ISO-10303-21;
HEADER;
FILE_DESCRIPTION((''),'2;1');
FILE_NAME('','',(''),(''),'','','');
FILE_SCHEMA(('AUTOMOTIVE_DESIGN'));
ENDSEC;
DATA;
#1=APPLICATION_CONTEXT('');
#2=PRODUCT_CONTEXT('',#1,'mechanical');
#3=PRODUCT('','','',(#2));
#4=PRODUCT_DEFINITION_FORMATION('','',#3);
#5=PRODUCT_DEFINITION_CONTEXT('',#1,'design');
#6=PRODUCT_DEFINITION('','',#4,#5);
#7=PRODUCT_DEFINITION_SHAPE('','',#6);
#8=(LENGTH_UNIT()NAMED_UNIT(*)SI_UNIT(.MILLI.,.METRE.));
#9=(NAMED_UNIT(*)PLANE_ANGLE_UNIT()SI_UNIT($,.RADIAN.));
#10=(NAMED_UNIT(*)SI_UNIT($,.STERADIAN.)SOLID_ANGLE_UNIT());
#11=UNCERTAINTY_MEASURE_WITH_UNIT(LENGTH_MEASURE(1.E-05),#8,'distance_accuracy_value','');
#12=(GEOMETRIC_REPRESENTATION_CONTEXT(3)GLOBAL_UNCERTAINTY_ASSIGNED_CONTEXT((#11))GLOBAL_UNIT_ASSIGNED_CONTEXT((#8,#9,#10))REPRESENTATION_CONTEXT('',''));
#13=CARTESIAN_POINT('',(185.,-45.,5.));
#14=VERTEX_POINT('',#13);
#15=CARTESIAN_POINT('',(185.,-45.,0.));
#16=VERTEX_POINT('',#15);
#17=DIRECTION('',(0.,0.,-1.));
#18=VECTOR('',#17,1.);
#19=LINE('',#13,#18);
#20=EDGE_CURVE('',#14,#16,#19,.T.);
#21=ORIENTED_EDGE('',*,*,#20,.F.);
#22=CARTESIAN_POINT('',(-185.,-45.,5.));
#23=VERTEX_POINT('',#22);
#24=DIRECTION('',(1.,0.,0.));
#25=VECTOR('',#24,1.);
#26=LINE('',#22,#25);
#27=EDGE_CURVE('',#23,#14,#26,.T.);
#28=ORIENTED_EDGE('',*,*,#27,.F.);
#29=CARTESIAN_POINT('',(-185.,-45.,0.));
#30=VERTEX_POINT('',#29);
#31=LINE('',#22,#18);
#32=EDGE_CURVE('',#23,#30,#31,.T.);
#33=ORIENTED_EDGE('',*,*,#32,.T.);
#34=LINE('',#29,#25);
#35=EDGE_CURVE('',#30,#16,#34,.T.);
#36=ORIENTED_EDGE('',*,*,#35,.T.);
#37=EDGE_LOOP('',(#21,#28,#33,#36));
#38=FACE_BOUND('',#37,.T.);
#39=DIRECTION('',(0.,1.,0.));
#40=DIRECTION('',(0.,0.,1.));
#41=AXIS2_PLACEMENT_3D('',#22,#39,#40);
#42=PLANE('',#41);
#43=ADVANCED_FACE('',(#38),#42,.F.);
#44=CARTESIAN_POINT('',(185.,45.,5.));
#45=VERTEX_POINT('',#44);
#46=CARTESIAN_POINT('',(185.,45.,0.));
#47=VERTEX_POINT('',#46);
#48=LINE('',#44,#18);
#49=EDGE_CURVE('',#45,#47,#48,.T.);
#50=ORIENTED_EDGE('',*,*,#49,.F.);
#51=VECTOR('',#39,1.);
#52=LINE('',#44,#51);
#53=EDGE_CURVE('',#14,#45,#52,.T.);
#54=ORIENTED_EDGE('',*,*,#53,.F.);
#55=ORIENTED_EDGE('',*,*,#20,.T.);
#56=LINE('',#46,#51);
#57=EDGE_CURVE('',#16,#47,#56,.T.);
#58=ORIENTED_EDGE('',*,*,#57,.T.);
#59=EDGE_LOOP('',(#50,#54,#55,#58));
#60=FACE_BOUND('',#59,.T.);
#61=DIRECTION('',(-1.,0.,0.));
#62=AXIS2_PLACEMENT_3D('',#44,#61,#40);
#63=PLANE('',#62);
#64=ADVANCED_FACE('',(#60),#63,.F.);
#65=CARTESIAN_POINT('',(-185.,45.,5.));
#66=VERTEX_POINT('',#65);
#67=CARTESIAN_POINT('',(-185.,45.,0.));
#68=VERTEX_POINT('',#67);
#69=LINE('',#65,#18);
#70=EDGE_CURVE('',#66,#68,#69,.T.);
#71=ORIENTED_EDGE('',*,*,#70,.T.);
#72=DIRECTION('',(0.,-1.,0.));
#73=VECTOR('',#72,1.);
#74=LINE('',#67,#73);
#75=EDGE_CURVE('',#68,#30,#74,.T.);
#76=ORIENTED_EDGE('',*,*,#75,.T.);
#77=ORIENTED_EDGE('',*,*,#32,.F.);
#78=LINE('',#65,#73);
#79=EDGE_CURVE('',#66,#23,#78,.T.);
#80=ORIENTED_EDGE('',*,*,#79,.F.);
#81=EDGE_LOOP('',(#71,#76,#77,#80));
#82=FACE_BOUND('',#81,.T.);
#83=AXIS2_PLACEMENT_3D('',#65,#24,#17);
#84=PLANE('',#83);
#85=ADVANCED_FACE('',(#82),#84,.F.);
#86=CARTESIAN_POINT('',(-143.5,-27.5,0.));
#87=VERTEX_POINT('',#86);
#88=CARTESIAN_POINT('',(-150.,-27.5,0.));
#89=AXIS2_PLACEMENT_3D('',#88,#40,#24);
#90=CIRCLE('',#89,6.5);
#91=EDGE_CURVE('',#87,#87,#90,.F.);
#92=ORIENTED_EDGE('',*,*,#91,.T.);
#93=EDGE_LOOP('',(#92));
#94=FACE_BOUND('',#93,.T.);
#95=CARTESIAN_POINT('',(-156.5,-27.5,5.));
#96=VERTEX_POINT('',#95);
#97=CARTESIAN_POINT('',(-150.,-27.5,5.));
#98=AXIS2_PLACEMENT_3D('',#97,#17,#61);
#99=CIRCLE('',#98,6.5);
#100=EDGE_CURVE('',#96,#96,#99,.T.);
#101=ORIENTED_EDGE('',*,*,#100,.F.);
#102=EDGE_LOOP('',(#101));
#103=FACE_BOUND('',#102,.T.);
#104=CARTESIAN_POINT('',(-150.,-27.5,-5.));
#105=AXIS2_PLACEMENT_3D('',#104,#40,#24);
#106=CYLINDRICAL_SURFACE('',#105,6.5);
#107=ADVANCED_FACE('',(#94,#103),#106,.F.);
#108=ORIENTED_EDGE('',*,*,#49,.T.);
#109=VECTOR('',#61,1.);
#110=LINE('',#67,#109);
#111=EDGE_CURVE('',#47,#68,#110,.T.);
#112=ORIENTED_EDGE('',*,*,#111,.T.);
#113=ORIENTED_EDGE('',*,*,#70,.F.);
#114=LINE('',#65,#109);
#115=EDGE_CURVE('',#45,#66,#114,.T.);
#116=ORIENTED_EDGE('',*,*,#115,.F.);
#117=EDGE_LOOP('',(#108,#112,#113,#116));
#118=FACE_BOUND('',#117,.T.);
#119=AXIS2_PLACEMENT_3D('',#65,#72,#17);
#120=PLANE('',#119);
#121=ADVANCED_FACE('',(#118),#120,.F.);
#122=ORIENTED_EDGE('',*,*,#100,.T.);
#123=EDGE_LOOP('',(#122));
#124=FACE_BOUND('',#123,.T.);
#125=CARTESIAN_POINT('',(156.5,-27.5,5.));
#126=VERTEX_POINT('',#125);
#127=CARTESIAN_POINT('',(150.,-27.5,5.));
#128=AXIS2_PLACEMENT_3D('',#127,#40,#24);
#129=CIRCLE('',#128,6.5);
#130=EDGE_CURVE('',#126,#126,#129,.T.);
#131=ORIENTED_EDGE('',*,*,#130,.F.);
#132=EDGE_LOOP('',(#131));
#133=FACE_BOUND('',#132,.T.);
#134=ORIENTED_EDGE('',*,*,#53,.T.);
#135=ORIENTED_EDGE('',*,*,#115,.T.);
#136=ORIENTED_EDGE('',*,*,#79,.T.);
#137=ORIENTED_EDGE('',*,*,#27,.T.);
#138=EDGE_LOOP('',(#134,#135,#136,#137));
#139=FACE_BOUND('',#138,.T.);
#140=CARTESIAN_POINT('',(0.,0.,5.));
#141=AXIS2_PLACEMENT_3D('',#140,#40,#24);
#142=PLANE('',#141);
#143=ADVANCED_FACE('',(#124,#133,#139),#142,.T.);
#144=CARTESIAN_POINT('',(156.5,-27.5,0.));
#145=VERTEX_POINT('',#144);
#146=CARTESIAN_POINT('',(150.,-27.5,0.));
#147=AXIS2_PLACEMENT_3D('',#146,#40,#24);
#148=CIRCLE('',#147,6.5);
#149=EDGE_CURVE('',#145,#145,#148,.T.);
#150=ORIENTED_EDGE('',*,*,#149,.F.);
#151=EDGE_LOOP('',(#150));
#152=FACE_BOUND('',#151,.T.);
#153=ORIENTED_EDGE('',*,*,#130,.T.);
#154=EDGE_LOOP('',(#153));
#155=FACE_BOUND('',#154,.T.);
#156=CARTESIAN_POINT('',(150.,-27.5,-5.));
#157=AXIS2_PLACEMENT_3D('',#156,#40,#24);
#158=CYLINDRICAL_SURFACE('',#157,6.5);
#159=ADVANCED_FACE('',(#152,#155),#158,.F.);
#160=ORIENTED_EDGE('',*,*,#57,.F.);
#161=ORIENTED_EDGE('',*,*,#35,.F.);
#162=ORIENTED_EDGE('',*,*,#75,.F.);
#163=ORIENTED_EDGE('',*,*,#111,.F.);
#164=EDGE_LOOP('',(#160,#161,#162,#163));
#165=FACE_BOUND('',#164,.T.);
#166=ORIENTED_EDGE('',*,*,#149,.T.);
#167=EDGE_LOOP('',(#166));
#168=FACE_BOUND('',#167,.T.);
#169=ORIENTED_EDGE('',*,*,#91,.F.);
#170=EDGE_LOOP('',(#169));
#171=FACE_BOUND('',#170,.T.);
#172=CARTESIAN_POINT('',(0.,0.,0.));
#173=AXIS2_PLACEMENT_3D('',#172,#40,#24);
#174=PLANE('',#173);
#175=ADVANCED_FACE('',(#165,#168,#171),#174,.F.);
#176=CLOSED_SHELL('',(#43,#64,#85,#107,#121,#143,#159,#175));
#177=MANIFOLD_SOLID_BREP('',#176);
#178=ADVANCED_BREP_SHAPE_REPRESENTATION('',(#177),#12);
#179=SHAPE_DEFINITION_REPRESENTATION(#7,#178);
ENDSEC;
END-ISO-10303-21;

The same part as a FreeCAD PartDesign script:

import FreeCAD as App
import Part
import Sketcher

doc = App.newDocument("Part")
body = doc.addObject("PartDesign::Body", "Body")

# Sketch on XY plane
sketch1 = doc.addObject("Sketcher::SketchObject", "Sketch")
body.addObject(sketch1)
sketch1.AttachmentSupport = (doc.XY_Plane, [""])
sketch1.MapMode = "FlatFace"
sketch1.addGeometry(Part.LineSegment(App.Vector(-185, 45, 0), App.Vector(-185, -45, 0)), False)
sketch1.addGeometry(Part.LineSegment(App.Vector(-185, -45, 0), App.Vector(185, -45, 0)), False)
sketch1.addGeometry(Part.LineSegment(App.Vector(185, -45, 0), App.Vector(185, 45, 0)), False)
sketch1.addGeometry(Part.LineSegment(App.Vector(185, 45, 0), App.Vector(-185, 45, 0)), False)
sketch1.addConstraint(Sketcher.Constraint("Coincident", 0, 2, 1, 1))
sketch1.addConstraint(Sketcher.Constraint("Coincident", 1, 2, 2, 1))
sketch1.addConstraint(Sketcher.Constraint("Coincident", 2, 2, 3, 1))
sketch1.addConstraint(Sketcher.Constraint("Coincident", 3, 2, 0, 1))
sketch1.addConstraint(Sketcher.Constraint("Vertical", 0))
sketch1.addConstraint(Sketcher.Constraint("Horizontal", 1))
sketch1.addConstraint(Sketcher.Constraint("Vertical", 2))
sketch1.addConstraint(Sketcher.Constraint("Horizontal", 3))
sketch1.addConstraint(Sketcher.Constraint("Symmetric", 0, 2, 2, 2, -1, 1))
sketch1.addConstraint(Sketcher.Constraint("DistanceX", 1, 1, 1, 2, 370.0))
sketch1.addConstraint(Sketcher.Constraint("DistanceY", 0, 2, 0, 1, 90.0))
pad1 = doc.addObject("PartDesign::Pad", "Pad")
body.addObject(pad1)
pad1.Profile = sketch1
pad1.Length = 5

# Sketch on XY plane
sketch2 = doc.addObject("Sketcher::SketchObject", "Sketch001")
body.addObject(sketch2)
sketch2.AttachmentSupport = (doc.XY_Plane, [""])
sketch2.MapMode = "FlatFace"
sketch2.AttachmentOffset = App.Placement(App.Vector(0, 0, 5), App.Rotation())
sketch2.addGeometry(Part.Circle(App.Vector(150, -28, 0), App.Vector(0, 0, 1), 6), False)
sketch2.addGeometry(Part.Circle(App.Vector(-150, -28, 0), App.Vector(0, 0, 1), 6), False)
sketch2.addConstraint(Sketcher.Constraint("Equal", 0, 1))
sketch2.addConstraint(Sketcher.Constraint("Symmetric", 0, 3, 1, 3, -2))
sketch2.addConstraint(Sketcher.Constraint("Diameter", 0, 13.0))
sketch2.addConstraint(Sketcher.Constraint("DistanceX", -1, 1, 0, 3, 150.0))
sketch2.addConstraint(Sketcher.Constraint("DistanceY", 0, 3, -1, 1, 27.5))
pocket1 = doc.addObject("PartDesign::Pocket", "Pocket")
body.addObject(pocket1)
pocket1.Profile = sketch2
pocket1.Length = 10

doc.recompute()
